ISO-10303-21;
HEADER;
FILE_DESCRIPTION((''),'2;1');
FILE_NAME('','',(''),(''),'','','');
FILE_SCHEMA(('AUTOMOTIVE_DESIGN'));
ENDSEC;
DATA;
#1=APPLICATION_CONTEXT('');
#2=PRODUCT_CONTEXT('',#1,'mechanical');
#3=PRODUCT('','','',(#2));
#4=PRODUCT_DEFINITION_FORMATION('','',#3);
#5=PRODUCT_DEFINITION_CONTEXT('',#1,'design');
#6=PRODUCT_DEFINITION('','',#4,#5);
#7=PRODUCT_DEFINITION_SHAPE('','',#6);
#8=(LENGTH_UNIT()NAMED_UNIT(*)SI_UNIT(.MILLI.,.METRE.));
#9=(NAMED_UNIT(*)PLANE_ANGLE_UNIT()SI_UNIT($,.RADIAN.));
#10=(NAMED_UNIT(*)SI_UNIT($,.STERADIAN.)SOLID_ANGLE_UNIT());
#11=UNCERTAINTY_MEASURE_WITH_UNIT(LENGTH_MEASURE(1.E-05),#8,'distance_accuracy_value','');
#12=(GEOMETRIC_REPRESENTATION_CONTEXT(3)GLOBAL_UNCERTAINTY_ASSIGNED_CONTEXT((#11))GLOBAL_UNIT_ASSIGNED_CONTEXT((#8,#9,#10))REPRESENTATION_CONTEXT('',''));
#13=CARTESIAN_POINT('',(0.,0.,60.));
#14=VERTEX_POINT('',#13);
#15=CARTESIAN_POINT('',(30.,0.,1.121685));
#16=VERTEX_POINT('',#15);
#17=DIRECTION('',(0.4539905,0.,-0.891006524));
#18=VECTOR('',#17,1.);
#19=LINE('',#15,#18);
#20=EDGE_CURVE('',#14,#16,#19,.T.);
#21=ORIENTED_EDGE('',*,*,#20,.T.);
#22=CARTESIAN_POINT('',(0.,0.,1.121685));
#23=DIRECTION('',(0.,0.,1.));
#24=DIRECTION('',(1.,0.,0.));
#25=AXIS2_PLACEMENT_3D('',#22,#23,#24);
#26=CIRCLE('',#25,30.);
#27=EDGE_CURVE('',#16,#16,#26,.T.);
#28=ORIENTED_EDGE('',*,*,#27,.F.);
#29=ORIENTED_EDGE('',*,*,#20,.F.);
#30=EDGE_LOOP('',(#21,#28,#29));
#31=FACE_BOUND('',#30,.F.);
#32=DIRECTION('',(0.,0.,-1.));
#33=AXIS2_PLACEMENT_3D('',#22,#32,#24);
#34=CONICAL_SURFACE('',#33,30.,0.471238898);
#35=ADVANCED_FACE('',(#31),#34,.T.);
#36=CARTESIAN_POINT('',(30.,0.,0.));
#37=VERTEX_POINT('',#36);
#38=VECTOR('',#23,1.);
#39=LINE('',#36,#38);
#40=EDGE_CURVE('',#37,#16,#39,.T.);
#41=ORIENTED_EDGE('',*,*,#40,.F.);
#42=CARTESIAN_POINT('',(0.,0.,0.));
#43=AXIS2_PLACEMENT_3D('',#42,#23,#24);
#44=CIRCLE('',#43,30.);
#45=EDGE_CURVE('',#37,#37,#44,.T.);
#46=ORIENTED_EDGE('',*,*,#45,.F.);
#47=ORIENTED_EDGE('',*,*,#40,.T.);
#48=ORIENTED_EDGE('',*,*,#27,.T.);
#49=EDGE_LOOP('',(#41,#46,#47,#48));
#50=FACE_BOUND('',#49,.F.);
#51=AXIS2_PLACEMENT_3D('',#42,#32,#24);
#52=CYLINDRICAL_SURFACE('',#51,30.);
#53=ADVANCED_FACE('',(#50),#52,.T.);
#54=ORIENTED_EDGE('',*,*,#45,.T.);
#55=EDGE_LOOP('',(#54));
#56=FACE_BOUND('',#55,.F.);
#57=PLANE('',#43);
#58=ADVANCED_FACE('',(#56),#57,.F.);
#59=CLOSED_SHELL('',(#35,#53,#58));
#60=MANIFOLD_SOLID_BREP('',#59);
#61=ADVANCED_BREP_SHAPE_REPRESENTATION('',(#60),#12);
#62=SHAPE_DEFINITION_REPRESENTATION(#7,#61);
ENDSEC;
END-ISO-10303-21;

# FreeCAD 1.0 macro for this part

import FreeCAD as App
import Part
import Sketcher
from FreeCAD import Vector


def edges_at(feature, points):
    """Names of the edges that pass closest to the given points."""
    edges = feature.Shape.Edges
    near = lambda p: min(range(len(edges)), key=lambda i: edges[i].distToShape(Part.Vertex(*p))[0])
    return sorted({f"Edge{near(p) + 1}" for p in points})

doc = App.newDocument("Part")
body = doc.addObject("PartDesign::Body", "Body")

# Sketch on XY plane
sketch1 = body.newObject("Sketcher::SketchObject", "Sketch")
sketch1.AttachmentSupport = (doc.getObject("XY_Plane"), [""])
sketch1.MapMode = "FlatFace"
sketch1.addGeometry(Part.Circle(Vector(0, 0, 0), Vector(0, 0, 1), 30), False)
sketch1.addConstraint([
    Sketcher.Constraint("Coincident", 0, 3, -1, 1),
    Sketcher.Constraint("Diameter", 0, 60.0),
])
pad1 = body.newObject("PartDesign::Pad", "Pad")
pad1.Profile = sketch1
pad1.Length = 60
doc.recompute()

chamfer = body.newObject("PartDesign::Chamfer", "Chamfer")
chamfer.Base = (pad1, edges_at(pad1, [(-30, 0, 60)]))
chamfer.ChamferType = "Two distances"
chamfer.Size = 30
chamfer.Size2 = 58.878315
chamfer.FlipDirection = True

doc.recompute()
